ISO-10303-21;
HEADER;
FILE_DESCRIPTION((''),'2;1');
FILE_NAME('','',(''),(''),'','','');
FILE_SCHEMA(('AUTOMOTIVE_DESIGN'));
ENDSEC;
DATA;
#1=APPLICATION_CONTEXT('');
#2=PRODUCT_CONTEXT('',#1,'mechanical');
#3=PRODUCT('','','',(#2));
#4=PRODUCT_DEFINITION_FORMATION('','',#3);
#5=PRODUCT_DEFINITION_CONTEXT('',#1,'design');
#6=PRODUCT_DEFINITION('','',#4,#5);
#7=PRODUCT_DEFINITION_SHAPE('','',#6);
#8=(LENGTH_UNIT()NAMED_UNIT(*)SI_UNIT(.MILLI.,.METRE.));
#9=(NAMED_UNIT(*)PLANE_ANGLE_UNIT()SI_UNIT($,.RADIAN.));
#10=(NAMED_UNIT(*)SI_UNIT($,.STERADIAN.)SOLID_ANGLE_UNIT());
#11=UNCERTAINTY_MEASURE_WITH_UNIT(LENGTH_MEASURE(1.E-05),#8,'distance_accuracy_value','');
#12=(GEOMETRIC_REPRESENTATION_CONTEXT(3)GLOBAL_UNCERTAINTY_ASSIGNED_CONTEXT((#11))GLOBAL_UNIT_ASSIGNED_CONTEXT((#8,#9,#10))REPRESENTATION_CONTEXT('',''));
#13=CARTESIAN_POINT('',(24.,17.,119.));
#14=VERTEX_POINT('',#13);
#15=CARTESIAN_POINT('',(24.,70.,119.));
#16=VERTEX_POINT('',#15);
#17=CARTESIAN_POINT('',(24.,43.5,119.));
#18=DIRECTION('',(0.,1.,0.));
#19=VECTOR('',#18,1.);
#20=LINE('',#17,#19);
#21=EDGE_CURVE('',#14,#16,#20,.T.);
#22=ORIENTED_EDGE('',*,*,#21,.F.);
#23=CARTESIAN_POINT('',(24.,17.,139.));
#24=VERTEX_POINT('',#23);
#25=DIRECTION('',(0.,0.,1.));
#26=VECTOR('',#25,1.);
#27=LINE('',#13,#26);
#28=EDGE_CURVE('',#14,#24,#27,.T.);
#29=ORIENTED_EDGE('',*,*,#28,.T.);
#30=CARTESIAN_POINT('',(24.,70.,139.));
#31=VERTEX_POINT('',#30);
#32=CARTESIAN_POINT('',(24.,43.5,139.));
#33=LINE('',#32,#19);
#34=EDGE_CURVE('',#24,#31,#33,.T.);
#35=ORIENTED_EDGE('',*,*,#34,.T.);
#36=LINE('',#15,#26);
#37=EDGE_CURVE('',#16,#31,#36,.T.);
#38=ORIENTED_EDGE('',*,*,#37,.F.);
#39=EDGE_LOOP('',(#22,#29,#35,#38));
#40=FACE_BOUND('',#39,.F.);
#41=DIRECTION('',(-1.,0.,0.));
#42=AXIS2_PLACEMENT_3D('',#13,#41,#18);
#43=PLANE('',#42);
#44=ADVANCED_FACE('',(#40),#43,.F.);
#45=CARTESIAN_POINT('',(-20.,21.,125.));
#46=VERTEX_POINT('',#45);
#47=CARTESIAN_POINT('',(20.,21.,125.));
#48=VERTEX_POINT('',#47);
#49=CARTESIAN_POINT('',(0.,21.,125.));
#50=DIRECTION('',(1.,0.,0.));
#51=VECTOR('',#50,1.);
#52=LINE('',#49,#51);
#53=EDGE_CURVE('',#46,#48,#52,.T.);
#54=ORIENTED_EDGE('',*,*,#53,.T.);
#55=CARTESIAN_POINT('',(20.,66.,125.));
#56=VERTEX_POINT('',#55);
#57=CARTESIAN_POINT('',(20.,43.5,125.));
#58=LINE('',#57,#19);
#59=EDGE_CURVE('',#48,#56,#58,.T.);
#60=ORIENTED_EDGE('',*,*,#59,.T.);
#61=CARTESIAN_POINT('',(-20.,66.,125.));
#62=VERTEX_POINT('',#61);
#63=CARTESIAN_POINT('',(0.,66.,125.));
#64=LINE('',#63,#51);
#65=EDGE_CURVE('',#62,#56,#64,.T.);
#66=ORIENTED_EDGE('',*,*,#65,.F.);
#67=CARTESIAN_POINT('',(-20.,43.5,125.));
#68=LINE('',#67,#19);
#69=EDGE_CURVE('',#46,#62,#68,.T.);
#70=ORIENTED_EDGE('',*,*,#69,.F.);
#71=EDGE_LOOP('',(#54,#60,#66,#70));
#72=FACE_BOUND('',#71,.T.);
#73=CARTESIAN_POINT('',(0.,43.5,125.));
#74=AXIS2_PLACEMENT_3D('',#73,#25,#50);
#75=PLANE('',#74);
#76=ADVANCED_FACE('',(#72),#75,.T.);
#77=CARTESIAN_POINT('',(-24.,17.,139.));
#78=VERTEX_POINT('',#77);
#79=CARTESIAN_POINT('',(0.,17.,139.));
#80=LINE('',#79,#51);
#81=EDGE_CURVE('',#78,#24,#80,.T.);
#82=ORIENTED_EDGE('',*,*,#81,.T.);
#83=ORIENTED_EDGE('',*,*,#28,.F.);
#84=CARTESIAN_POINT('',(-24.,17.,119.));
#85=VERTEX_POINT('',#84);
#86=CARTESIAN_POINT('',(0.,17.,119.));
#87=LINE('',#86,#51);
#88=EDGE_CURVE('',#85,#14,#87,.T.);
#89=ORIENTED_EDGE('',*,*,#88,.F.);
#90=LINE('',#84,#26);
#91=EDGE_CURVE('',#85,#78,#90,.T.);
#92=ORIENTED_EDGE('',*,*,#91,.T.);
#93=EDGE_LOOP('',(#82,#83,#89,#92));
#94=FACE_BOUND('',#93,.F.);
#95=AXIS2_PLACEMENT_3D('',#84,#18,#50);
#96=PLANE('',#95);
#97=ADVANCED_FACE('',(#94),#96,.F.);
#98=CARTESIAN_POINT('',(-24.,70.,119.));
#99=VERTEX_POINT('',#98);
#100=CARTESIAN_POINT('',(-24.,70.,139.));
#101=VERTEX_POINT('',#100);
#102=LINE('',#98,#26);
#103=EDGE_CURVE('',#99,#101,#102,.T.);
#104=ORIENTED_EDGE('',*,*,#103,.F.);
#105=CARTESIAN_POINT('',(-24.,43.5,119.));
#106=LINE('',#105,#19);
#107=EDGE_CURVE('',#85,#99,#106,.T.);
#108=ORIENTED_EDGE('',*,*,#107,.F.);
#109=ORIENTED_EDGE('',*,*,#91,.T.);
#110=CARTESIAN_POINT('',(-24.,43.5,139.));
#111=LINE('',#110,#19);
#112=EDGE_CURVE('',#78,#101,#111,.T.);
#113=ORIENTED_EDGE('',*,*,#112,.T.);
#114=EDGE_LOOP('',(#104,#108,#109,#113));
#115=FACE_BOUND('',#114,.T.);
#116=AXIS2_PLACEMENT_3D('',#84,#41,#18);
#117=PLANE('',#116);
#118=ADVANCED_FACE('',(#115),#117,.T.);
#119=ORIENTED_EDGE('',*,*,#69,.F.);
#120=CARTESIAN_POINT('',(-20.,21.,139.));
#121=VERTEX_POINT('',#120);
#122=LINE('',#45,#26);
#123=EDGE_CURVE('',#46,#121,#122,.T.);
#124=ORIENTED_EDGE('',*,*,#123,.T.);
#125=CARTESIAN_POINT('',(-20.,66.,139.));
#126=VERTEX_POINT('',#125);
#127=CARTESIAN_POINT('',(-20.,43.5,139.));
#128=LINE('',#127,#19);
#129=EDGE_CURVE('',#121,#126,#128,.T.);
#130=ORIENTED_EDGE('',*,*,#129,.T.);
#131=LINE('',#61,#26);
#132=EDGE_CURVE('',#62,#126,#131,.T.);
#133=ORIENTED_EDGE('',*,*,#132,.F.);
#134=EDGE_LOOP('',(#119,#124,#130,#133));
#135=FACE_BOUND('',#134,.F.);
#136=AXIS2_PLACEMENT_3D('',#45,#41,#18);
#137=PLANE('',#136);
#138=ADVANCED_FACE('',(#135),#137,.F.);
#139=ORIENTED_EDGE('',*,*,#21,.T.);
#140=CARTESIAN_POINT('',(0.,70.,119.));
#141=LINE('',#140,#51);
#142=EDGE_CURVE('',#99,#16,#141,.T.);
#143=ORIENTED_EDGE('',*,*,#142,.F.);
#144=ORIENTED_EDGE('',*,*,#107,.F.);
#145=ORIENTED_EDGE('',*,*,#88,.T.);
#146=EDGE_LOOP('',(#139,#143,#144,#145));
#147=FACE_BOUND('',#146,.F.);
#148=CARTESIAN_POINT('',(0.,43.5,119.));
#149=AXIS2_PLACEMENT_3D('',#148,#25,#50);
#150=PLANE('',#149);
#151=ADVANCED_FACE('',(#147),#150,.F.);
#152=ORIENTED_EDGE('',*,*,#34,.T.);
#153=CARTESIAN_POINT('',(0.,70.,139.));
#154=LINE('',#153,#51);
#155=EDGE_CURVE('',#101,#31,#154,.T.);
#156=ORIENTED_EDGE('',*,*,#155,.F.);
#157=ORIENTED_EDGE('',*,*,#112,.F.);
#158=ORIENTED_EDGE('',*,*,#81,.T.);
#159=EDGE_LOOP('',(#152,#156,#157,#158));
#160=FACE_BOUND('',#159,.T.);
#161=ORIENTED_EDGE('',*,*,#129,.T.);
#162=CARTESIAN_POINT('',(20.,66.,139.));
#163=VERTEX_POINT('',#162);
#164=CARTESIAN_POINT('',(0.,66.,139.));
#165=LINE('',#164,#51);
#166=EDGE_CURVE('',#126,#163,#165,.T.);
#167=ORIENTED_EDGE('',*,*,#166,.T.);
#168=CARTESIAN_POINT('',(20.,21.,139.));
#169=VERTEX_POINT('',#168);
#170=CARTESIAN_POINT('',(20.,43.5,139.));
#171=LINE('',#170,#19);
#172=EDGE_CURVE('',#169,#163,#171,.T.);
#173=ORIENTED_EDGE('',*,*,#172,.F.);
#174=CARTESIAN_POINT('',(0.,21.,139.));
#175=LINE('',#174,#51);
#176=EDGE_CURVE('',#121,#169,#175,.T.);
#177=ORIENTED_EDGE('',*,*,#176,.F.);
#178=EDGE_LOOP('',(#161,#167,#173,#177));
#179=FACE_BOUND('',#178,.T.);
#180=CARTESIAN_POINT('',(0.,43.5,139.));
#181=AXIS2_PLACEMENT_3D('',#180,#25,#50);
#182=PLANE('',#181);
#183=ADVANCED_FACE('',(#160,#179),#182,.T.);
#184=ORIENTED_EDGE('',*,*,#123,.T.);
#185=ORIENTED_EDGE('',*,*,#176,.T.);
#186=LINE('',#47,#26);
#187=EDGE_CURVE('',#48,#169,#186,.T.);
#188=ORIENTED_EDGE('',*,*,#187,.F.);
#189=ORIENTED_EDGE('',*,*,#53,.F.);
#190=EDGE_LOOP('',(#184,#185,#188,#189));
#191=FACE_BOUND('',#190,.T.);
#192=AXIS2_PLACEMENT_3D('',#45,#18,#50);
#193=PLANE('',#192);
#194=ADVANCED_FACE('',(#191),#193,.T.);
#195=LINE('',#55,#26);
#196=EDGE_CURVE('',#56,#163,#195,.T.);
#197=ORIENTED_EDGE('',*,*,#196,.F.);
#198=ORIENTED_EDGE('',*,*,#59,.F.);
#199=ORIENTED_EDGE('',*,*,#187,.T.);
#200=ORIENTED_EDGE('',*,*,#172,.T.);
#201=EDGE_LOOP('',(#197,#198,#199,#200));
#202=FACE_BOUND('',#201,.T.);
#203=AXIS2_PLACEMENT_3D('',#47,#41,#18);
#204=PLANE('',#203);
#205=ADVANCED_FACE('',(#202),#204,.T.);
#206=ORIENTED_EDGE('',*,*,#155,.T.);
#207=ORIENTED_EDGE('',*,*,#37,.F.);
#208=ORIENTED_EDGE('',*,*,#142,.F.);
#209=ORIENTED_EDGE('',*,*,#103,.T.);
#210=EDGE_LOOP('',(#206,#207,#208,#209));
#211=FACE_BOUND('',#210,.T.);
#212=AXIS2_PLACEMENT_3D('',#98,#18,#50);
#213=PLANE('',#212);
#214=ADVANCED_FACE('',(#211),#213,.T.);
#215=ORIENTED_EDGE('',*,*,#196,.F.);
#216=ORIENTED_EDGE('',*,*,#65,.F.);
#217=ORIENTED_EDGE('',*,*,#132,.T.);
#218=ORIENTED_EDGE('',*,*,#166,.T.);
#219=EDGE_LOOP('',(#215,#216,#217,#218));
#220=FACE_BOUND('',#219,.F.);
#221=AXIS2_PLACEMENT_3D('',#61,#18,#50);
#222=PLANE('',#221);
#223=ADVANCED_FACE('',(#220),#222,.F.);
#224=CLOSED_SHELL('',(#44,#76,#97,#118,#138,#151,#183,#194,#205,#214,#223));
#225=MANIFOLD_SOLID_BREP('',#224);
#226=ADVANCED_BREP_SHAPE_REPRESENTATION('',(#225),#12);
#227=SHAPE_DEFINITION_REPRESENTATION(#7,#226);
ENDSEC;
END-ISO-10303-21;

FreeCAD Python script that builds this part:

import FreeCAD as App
import Part
import Sketcher

V = App.Vector
Q = App.Units.Quantity


def add_polygon(sketch, points):
    """Adds a closed chain of lines whose ends are joined by coincident constraints."""
    first, n = sketch.GeometryCount, len(points)
    for a, b in zip(points, points[1:] + points[:1]):
        sketch.addGeometry(Part.LineSegment(App.Vector(*a, 0), App.Vector(*b, 0)), False)
    for i in range(n):
        sketch.addConstraint(Sketcher.Constraint("Coincident", first + i, 2, first + (i + 1) % n, 1))

doc = App.newDocument("Part")
body = doc.addObject("PartDesign::Body", "Body")

sketch1 = doc.addObject("Sketcher::SketchObject", "Sketch")
body.addObject(sketch1)
sketch1.AttachmentSupport = (doc.XY_Plane, [""])
sketch1.MapMode = "FlatFace"
sketch1.AttachmentOffset = App.Placement(V(0, 0, 156), App.Rotation())
add_polygon(sketch1, [(-20, 60), (-20, 15), (20, 15), (20, 60)])
sketch1.addConstraint([
    Sketcher.Constraint("Vertical", 0),
    Sketcher.Constraint("Horizontal", 1),
    Sketcher.Constraint("Vertical", 2),
    Sketcher.Constraint("Horizontal", 3),
    Sketcher.Constraint("DistanceX", 1, 1, 1, 2, Q("40 mm")),
    Sketcher.Constraint("DistanceY", 0, 2, 0, 1, Q("45 mm")),
    Sketcher.Constraint("DistanceX", 0, 2, -1, 1, Q("20 mm")),
    Sketcher.Constraint("DistanceY", -1, 1, 0, 2, Q("15 mm")),
])
pad1 = doc.addObject("PartDesign::Pad", "Pad")
body.addObject(pad1)
pad1.Profile = sketch1
pad1.Length = 14
body2 = doc.addObject("PartDesign::Body", "Body001")

sketch2 = doc.addObject("Sketcher::SketchObject", "Sketch001")
body2.addObject(sketch2)
sketch2.AttachmentSupport = (doc.getObject("XY_Plane001"), [""])
sketch2.MapMode = "FlatFace"
sketch2.AttachmentOffset = App.Placement(V(0, 0, 150), App.Rotation())
add_polygon(sketch2, [(-24, 64), (-24, 11), (24, 11), (24, 64)])
sketch2.addConstraint([
    Sketcher.Constraint("Vertical", 0),
    Sketcher.Constraint("Horizontal", 1),
    Sketcher.Constraint("Vertical", 2),
    Sketcher.Constraint("Horizontal", 3),
    Sketcher.Constraint("DistanceX", 1, 1, 1, 2, Q("48 mm")),
    Sketcher.Constraint("DistanceY", 0, 2, 0, 1, Q("53 mm")),
    Sketcher.Constraint("DistanceX", 0, 2, -1, 1, Q("24 mm")),
    Sketcher.Constraint("DistanceY", -1, 1, 0, 2, Q("11 mm")),
])
pad2 = doc.addObject("PartDesign::Pad", "Pad001")
body2.addObject(pad2)
pad2.Profile = sketch2
pad2.Length = 20
doc.recompute()

boolean = doc.addObject("PartDesign::Boolean", "Boolean")
body2.addObject(boolean)
boolean.Type = "Cut"
boolean.addObjects([body])
body3 = doc.addObject("PartDesign::Body", "Body002")
doc.recompute()

body2.Placement = App.Placement(V(0, 6, -31), App.Rotation(V(0, 0, 1), 0))
boolean2 = doc.addObject("PartDesign::Boolean", "Boolean001")
body3.addObject(boolean2)
boolean2.Type = "Fuse"
boolean2.addObjects([body2])

doc.recompute()
